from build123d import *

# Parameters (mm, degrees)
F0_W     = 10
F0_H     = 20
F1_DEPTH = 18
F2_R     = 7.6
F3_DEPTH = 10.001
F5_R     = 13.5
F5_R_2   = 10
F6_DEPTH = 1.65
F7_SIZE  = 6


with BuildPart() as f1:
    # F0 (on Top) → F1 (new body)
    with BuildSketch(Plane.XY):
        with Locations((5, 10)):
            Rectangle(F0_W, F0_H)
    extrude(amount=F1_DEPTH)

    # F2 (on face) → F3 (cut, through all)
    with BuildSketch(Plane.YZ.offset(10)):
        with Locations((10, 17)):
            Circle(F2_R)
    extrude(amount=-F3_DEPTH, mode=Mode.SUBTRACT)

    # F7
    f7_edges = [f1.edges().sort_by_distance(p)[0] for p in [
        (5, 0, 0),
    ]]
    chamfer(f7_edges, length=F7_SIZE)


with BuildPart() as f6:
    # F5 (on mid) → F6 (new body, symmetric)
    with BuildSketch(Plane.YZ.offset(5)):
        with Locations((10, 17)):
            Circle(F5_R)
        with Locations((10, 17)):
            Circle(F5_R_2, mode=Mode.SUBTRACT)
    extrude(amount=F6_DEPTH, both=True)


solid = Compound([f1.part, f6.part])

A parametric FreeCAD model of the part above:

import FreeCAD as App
import Part
import Sketcher

V = App.Vector
Q = App.Units.Quantity


def edges_at(feature, points):
    """Names of the edges that pass closest to the given points."""
    edges = feature.Shape.Edges
    near = lambda p: min(range(len(edges)), key=lambda i: edges[i].distToShape(Part.Vertex(*p))[0])
    return sorted({f"Edge{near(p) + 1}" for p in points})


def add_polygon(sketch, points):
    """Adds a closed chain of lines whose ends are joined by coincident constraints."""
    first, n = sketch.GeometryCount, len(points)
    for a, b in zip(points, points[1:] + points[:1]):
        sketch.addGeometry(Part.LineSegment(App.Vector(*a, 0), App.Vector(*b, 0)), False)
    for i in range(n):
        sketch.addConstraint(Sketcher.Constraint("Coincident", first + i, 2, first + (i + 1) % n, 1))

doc = App.newDocument("Part")
body = doc.addObject("PartDesign::Body", "Body")

# Sketch on XY plane
sketch1 = doc.addObject("Sketcher::SketchObject", "Sketch")
body.addObject(sketch1)
sketch1.AttachmentSupport = (doc.XY_Plane, [""])
sketch1.MapMode = "FlatFace"
add_polygon(sketch1, [(0, 20), (0, 0), (10, 0), (10, 20)])  # lines 0-3
sketch1.addConstraint([
    Sketcher.Constraint("Vertical", 0),
    Sketcher.Constraint("Horizontal", 1),
    Sketcher.Constraint("Vertical", 2),
    Sketcher.Constraint("Horizontal", 3),
    Sketcher.Constraint("Coincident", 0, 2, -1, 1),
    Sketcher.Constraint("DistanceX", 1, 1, 1, 2, Q("10 mm")),
    Sketcher.Constraint("DistanceY", 0, 2, 0, 1, Q("20 mm")),
])
pad1 = doc.addObject("PartDesign::Pad", "Pad")
body.addObject(pad1)
pad1.Profile = sketch1
pad1.Length = 18

# Sketch on YZ plane
sketch2 = doc.addObject("Sketcher::SketchObject", "Sketch001")
body.addObject(sketch2)
sketch2.AttachmentSupport = (doc.YZ_Plane, [""])
sketch2.MapMode = "FlatFace"
sketch2.AttachmentOffset = App.Placement(V(0, 0, 10), App.Rotation())
sketch2.addGeometry(Part.Circle(V(10, 17, 0), V(0, 0, 1), 8), False)
sketch2.addConstraint([
    Sketcher.Constraint("Diameter", 0, Q("15.2 mm")),
    Sketcher.Constraint("DistanceX", -1, 1, 0, 3, Q("10 mm")),
    Sketcher.Constraint("DistanceY", -1, 1, 0, 3, Q("17 mm")),
])
pocket1 = doc.addObject("PartDesign::Pocket", "Pocket")
body.addObject(pocket1)
pocket1.Profile = sketch2
pocket1.Type = "ThroughAll"
doc.recompute()

chamfer = doc.addObject("PartDesign::Chamfer", "Chamfer")
body.addObject(chamfer)
chamfer.Base = (pocket1, edges_at(pocket1, [(5, 0, 0)]))
chamfer.Size = 6
body2 = doc.addObject("PartDesign::Body", "Body001")

# Sketch on YZ plane
sketch3 = doc.addObject("Sketcher::SketchObject", "Sketch002")
body2.addObject(sketch3)
sketch3.AttachmentSupport = (doc.getObject("YZ_Plane001"), [""])
sketch3.MapMode = "FlatFace"
sketch3.AttachmentOffset = App.Placement(V(0, 0, 5), App.Rotation())
sketch3.addGeometry([
    Part.Circle(V(10, 17, 0), V(0, 0, 1), 14),
    Part.Circle(V(10, 17, 0), V(0, 0, 1), 10),
], False)
sketch3.addConstraint([
    Sketcher.Constraint("Coincident", 1, 3, 0, 3),
    Sketcher.Constraint("Diameter", 0, Q("27 mm")),
    Sketcher.Constraint("Diameter", 1, Q("20 mm")),
    Sketcher.Constraint("DistanceX", -1, 1, 0, 3, Q("10 mm")),
    Sketcher.Constraint("DistanceY", -1, 1, 0, 3, Q("17 mm")),
])
pad2 = doc.addObject("PartDesign::Pad", "Pad001")
body2.addObject(pad2)
pad2.Profile = sketch3
pad2.Length = 3.3
pad2.Midplane = True

doc.recompute()
